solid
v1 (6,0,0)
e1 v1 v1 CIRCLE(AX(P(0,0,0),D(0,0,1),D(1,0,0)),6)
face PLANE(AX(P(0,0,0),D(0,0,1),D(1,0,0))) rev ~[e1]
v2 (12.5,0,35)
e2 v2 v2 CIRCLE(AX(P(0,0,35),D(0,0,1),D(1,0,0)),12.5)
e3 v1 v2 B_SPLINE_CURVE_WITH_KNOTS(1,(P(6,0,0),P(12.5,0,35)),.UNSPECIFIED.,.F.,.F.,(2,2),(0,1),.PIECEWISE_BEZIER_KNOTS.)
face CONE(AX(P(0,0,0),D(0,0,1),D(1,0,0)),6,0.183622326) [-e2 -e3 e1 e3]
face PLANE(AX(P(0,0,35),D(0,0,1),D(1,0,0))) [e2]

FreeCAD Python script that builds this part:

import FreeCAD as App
import Part
import Sketcher

doc = App.newDocument("Part")
body = doc.addObject("PartDesign::Body", "Body")

# Sketch on XY plane
sketch1 = doc.addObject("Sketcher::SketchObject", "Sketch")
body.addObject(sketch1)
sketch1.AttachmentSupport = (doc.XY_Plane, [""])
sketch1.MapMode = "FlatFace"
sketch1.addGeometry(Part.Circle(App.Vector(0, 0, 0), App.Vector(0, 0, 1), 6), False)
sketch1.addConstraint(Sketcher.Constraint("Coincident", 0, 3, -1, 1))
sketch1.addConstraint(Sketcher.Constraint("Diameter", 0, 12.0))

# Sketch on XY plane
sketch2 = doc.addObject("Sketcher::SketchObject", "Sketch001")
body.addObject(sketch2)
sketch2.AttachmentSupport = (doc.XY_Plane, [""])
sketch2.MapMode = "FlatFace"
sketch2.AttachmentOffset = App.Placement(App.Vector(0, 0, 35), App.Rotation())
sketch2.addGeometry(Part.Circle(App.Vector(0, 0, 0), App.Vector(0, 0, 1), 12), False)
sketch2.addConstraint(Sketcher.Constraint("Coincident", 0, 3, -1, 1))
sketch2.addConstraint(Sketcher.Constraint("Diameter", 0, 25.0))

additiveloft = doc.addObject("PartDesign::AdditiveLoft", "AdditiveLoft")
body.addObject(additiveloft)
additiveloft.Profile = sketch1
additiveloft.Sections = [sketch2]

doc.recompute()
